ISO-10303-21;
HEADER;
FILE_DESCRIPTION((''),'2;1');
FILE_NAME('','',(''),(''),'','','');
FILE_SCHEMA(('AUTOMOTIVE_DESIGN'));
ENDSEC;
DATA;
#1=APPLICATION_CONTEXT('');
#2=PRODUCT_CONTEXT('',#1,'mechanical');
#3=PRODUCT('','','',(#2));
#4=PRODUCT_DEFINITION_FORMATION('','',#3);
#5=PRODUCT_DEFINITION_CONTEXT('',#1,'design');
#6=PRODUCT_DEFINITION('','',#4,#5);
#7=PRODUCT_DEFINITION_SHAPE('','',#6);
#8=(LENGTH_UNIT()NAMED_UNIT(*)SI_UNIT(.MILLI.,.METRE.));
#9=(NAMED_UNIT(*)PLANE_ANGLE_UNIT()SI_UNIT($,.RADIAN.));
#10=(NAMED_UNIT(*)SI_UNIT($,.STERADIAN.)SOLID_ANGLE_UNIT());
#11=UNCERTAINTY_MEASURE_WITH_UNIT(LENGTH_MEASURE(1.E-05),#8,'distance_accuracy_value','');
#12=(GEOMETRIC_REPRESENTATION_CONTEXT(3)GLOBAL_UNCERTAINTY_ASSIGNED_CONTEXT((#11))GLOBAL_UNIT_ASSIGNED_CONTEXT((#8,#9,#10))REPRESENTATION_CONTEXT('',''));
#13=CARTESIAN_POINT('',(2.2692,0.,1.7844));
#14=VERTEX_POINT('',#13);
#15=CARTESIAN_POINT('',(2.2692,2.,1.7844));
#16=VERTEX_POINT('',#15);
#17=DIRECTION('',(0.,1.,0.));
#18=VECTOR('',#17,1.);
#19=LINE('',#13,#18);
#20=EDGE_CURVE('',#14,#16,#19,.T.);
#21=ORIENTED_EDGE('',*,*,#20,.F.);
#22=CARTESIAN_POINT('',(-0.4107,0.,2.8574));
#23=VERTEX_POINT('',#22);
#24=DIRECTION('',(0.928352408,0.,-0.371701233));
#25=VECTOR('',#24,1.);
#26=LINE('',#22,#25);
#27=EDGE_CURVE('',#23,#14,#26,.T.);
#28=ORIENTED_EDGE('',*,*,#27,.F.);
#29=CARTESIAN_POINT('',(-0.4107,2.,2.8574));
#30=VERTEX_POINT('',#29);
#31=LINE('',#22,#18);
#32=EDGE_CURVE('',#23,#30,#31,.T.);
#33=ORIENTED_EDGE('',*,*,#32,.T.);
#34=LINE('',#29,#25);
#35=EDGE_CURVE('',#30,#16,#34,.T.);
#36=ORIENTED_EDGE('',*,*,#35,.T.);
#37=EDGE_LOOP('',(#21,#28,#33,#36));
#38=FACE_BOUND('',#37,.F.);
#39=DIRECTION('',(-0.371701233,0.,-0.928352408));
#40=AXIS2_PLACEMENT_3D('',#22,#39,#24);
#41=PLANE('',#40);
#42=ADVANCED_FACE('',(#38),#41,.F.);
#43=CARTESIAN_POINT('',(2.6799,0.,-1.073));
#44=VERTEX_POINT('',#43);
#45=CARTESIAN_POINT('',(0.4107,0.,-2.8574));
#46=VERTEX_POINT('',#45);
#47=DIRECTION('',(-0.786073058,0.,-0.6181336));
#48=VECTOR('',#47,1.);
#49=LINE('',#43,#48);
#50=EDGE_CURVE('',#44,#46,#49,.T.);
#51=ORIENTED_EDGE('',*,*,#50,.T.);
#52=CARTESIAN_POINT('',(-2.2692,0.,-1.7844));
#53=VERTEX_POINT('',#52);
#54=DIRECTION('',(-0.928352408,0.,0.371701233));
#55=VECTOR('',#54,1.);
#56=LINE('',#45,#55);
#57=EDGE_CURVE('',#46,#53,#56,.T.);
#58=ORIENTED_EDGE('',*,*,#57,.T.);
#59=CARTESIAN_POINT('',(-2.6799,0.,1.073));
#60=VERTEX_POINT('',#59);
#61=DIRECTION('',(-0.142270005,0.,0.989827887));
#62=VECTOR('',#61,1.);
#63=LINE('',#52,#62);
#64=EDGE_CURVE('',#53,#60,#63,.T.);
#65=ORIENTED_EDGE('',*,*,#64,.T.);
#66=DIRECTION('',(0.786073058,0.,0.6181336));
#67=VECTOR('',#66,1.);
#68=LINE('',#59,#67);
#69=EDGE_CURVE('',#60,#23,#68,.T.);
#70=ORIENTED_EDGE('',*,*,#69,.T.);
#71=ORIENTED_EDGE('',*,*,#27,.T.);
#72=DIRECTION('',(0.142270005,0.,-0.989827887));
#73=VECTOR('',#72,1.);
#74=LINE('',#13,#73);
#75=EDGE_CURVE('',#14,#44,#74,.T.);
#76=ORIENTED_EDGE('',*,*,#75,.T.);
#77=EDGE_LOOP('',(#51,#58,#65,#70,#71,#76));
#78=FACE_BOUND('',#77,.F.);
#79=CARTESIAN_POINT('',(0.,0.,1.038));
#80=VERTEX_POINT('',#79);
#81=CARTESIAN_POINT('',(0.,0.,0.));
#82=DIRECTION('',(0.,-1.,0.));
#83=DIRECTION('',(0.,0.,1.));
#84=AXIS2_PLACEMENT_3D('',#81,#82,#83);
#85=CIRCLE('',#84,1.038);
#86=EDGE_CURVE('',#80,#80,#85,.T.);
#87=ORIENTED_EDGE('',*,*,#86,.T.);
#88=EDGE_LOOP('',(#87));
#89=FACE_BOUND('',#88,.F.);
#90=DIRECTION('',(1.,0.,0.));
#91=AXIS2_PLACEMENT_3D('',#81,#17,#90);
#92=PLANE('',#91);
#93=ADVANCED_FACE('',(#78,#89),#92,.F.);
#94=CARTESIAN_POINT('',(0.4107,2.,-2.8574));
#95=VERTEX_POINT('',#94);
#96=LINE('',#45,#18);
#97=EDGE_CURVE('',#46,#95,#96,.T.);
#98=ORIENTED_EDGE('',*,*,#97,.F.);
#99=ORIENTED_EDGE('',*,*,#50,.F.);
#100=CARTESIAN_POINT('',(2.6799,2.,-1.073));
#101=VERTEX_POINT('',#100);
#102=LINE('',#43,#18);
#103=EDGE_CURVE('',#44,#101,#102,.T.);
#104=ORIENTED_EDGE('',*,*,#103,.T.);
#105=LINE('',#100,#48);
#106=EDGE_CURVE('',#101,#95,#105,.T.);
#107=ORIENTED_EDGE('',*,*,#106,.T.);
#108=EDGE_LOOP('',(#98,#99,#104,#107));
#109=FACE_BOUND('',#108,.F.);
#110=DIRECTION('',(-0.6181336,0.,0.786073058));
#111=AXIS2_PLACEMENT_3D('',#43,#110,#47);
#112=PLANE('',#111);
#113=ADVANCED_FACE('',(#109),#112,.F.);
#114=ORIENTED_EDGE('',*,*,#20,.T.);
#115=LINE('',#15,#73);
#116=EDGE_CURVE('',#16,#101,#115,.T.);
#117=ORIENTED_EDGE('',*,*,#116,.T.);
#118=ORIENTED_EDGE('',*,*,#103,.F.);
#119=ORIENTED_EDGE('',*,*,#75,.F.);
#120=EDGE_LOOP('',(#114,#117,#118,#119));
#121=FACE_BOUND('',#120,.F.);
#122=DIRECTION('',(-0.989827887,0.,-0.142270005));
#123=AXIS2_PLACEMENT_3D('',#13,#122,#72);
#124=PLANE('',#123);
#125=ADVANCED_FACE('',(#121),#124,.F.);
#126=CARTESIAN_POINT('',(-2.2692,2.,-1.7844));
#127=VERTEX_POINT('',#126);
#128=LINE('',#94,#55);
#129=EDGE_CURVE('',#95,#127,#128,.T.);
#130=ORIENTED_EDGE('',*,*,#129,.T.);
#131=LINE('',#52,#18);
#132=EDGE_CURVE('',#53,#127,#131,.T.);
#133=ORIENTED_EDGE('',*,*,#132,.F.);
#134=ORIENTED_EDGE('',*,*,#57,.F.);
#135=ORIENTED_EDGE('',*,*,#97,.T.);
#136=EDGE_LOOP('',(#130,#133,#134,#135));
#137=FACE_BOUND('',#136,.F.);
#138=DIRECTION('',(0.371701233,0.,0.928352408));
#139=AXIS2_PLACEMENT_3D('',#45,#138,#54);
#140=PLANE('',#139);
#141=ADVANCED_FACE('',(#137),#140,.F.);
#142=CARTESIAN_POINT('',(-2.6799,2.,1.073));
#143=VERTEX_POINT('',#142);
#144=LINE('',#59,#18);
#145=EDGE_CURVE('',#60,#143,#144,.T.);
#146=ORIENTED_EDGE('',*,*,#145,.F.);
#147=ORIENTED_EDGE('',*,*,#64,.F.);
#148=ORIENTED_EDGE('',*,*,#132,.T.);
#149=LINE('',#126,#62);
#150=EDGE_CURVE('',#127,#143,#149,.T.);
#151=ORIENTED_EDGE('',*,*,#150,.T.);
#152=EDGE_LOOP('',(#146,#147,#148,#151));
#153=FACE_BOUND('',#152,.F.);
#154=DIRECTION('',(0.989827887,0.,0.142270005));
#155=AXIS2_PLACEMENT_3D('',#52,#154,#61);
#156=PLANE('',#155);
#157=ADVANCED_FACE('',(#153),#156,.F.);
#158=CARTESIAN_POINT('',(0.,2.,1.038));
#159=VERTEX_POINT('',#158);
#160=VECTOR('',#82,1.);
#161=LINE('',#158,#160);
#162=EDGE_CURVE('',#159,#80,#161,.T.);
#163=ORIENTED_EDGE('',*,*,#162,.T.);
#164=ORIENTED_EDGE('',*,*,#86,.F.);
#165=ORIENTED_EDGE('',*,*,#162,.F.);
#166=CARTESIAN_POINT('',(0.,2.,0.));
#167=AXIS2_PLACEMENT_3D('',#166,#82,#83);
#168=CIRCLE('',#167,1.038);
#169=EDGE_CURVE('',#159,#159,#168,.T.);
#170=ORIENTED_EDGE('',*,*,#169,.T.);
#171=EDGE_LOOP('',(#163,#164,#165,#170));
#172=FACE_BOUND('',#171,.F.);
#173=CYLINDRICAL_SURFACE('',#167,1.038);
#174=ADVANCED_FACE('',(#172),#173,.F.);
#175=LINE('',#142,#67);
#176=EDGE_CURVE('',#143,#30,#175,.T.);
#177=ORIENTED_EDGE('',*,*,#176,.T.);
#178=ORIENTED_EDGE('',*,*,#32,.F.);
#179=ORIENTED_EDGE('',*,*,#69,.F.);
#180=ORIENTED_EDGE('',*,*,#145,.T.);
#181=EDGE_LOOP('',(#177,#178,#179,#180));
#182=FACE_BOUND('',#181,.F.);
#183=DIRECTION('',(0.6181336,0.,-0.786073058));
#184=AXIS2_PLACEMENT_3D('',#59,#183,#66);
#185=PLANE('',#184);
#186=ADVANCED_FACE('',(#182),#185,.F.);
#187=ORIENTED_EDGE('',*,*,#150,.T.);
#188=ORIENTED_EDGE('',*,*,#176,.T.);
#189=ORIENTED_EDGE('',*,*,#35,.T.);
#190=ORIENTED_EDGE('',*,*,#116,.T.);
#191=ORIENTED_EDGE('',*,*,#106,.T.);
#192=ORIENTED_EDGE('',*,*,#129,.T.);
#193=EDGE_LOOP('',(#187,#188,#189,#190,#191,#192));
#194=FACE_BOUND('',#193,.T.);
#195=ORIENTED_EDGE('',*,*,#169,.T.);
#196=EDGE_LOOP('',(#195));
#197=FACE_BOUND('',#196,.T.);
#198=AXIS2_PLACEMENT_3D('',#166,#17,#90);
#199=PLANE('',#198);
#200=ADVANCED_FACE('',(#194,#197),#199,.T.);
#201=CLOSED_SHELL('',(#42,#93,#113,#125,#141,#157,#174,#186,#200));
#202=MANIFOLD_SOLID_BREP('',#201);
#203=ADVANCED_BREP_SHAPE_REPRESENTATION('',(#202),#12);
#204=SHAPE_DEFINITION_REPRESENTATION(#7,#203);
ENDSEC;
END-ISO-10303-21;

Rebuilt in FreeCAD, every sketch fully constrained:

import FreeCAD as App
import Part
import Sketcher
Q = App.Units.Quantity


def add_polygon(sketch, points):
    """Adds a closed chain of lines whose ends are joined by coincident constraints."""
    first, n = sketch.GeometryCount, len(points)
    for a, b in zip(points, points[1:] + points[:1]):
        sketch.addGeometry(Part.LineSegment(App.Vector(*a, 0), App.Vector(*b, 0)), False)
    for i in range(n):
        sketch.addConstraint(Sketcher.Constraint("Coincident", first + i, 2, first + (i + 1) % n, 1))

doc = App.newDocument("Part")
body = doc.addObject("PartDesign::Body", "Body")

sketch1 = doc.addObject("Sketcher::SketchObject", "Sketch")
body.addObject(sketch1)
sketch1.AttachmentSupport = (doc.XZ_Plane, [""])
sketch1.MapMode = "FlatFace"
add_polygon(sketch1, [(2.7, -1.1), (0.4, -2.9), (-2.3, -1.8), (-2.7, 1.1), (-0.4, 2.9), (2.3, 1.8)])
sketch1.addConstraint([
    Sketcher.Constraint("Symmetric", 0, 2, 3, 2, -1, 1),
    Sketcher.Constraint("Symmetric", 1, 2, 4, 2, -1, 1),
    Sketcher.Constraint("Symmetric", 2, 2, 5, 2, -1, 1),
    Sketcher.Constraint("Equal", 0, 1),
    Sketcher.Constraint("Equal", 1, 2),
    Sketcher.Constraint("Angle", 0, Q("-141.82 deg")),
    Sketcher.Constraint("Angle", 1, Q("158.1794 deg")),
    Sketcher.Constraint("Angle", 2, Q("98.1792 deg")),
    Sketcher.Constraint("DistanceX", 2, 2, -1, 1, 2.68),
])
pad1 = doc.addObject("PartDesign::Pad", "Pad")
body.addObject(pad1)
pad1.Profile = sketch1
pad1.Length = 2
pad1.Reversed = True

sketch2 = doc.addObject("Sketcher::SketchObject", "Sketch001")
body.addObject(sketch2)
sketch2.AttachmentSupport = (doc.XZ_Plane, [""])
sketch2.MapMode = "FlatFace"
sketch2.AttachmentOffset = App.Placement(App.Vector(0, 0, -2), App.Rotation())
sketch2.addGeometry(Part.Circle(App.Vector(0, 0, 0), App.Vector(0, 0, 1), 1), False)
sketch2.addConstraint([
    Sketcher.Constraint("Coincident", 0, 3, -1, 1),
    Sketcher.Constraint("Diameter", 0, 2.076),
])
doc.recompute()
hole = doc.addObject("PartDesign::Hole", "Hole")
body.addObject(hole)
hole.Profile = sketch2
hole.ThreadType = "None"
hole.Diameter = 2.076
hole.DepthType = "Dimension"
hole.Depth = 3.5
hole.DrillPoint = "Angled"
hole.DrillPointAngle = 118
hole.Reversed = True

doc.recompute()
